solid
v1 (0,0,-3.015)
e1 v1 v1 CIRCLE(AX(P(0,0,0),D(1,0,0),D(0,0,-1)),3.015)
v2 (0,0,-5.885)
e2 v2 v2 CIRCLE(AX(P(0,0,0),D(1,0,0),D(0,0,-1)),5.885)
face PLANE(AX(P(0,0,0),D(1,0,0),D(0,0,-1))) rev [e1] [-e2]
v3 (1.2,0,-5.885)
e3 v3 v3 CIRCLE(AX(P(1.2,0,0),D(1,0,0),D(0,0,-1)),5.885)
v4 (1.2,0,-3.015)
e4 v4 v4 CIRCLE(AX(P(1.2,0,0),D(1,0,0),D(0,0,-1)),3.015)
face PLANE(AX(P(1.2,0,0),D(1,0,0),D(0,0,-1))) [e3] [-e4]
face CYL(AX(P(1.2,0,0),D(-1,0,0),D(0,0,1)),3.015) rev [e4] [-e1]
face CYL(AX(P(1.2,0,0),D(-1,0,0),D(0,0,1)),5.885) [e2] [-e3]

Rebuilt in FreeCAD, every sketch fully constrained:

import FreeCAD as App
import Part
import Sketcher

doc = App.newDocument("Part")
params = doc.addObject("Spreadsheet::Sheet", "Params")
for row, (alias, value) in enumerate([
    ("sketch1_diameter", "11.77 mm"),
    ("sketch1_diameter2", "6.03 mm"),
    ("pad1_length", "1.2 mm"),
], start=1):
    params.set(f"A{row}", alias)
    params.set(f"B{row}", "=" + value)
    params.setAlias(f"B{row}", alias)

body = doc.addObject("PartDesign::Body", "Body")

sketch1 = body.newObject("Sketcher::SketchObject", "Sketch")
sketch1.AttachmentSupport = (doc.getObject("YZ_Plane"), [""])
sketch1.MapMode = "FlatFace"
sketch1.addGeometry(Part.Circle(App.Vector(0, 0, 0), App.Vector(0, 0, 1), 5.885), False)
sketch1.addGeometry(Part.Circle(App.Vector(0, 0, 0), App.Vector(0, 0, 1), 3.015), False)
sketch1.addConstraint(Sketcher.Constraint("Coincident", 0, 3, -1, 1))
sketch1.addConstraint(Sketcher.Constraint("Coincident", 1, 3, -1, 1))
sketch1.addConstraint(Sketcher.Constraint("Diameter", 0, 11.77))
sketch1.addConstraint(Sketcher.Constraint("Diameter", 1, 6.03))
sketch1.setExpression("Constraints[2]", "Params.sketch1_diameter")
sketch1.setExpression("Constraints[3]", "Params.sketch1_diameter2")
pad1 = body.newObject("PartDesign::Pad", "Pad")
pad1.Profile = sketch1
pad1.setExpression("Length", "Params.pad1_length")

doc.recompute()
